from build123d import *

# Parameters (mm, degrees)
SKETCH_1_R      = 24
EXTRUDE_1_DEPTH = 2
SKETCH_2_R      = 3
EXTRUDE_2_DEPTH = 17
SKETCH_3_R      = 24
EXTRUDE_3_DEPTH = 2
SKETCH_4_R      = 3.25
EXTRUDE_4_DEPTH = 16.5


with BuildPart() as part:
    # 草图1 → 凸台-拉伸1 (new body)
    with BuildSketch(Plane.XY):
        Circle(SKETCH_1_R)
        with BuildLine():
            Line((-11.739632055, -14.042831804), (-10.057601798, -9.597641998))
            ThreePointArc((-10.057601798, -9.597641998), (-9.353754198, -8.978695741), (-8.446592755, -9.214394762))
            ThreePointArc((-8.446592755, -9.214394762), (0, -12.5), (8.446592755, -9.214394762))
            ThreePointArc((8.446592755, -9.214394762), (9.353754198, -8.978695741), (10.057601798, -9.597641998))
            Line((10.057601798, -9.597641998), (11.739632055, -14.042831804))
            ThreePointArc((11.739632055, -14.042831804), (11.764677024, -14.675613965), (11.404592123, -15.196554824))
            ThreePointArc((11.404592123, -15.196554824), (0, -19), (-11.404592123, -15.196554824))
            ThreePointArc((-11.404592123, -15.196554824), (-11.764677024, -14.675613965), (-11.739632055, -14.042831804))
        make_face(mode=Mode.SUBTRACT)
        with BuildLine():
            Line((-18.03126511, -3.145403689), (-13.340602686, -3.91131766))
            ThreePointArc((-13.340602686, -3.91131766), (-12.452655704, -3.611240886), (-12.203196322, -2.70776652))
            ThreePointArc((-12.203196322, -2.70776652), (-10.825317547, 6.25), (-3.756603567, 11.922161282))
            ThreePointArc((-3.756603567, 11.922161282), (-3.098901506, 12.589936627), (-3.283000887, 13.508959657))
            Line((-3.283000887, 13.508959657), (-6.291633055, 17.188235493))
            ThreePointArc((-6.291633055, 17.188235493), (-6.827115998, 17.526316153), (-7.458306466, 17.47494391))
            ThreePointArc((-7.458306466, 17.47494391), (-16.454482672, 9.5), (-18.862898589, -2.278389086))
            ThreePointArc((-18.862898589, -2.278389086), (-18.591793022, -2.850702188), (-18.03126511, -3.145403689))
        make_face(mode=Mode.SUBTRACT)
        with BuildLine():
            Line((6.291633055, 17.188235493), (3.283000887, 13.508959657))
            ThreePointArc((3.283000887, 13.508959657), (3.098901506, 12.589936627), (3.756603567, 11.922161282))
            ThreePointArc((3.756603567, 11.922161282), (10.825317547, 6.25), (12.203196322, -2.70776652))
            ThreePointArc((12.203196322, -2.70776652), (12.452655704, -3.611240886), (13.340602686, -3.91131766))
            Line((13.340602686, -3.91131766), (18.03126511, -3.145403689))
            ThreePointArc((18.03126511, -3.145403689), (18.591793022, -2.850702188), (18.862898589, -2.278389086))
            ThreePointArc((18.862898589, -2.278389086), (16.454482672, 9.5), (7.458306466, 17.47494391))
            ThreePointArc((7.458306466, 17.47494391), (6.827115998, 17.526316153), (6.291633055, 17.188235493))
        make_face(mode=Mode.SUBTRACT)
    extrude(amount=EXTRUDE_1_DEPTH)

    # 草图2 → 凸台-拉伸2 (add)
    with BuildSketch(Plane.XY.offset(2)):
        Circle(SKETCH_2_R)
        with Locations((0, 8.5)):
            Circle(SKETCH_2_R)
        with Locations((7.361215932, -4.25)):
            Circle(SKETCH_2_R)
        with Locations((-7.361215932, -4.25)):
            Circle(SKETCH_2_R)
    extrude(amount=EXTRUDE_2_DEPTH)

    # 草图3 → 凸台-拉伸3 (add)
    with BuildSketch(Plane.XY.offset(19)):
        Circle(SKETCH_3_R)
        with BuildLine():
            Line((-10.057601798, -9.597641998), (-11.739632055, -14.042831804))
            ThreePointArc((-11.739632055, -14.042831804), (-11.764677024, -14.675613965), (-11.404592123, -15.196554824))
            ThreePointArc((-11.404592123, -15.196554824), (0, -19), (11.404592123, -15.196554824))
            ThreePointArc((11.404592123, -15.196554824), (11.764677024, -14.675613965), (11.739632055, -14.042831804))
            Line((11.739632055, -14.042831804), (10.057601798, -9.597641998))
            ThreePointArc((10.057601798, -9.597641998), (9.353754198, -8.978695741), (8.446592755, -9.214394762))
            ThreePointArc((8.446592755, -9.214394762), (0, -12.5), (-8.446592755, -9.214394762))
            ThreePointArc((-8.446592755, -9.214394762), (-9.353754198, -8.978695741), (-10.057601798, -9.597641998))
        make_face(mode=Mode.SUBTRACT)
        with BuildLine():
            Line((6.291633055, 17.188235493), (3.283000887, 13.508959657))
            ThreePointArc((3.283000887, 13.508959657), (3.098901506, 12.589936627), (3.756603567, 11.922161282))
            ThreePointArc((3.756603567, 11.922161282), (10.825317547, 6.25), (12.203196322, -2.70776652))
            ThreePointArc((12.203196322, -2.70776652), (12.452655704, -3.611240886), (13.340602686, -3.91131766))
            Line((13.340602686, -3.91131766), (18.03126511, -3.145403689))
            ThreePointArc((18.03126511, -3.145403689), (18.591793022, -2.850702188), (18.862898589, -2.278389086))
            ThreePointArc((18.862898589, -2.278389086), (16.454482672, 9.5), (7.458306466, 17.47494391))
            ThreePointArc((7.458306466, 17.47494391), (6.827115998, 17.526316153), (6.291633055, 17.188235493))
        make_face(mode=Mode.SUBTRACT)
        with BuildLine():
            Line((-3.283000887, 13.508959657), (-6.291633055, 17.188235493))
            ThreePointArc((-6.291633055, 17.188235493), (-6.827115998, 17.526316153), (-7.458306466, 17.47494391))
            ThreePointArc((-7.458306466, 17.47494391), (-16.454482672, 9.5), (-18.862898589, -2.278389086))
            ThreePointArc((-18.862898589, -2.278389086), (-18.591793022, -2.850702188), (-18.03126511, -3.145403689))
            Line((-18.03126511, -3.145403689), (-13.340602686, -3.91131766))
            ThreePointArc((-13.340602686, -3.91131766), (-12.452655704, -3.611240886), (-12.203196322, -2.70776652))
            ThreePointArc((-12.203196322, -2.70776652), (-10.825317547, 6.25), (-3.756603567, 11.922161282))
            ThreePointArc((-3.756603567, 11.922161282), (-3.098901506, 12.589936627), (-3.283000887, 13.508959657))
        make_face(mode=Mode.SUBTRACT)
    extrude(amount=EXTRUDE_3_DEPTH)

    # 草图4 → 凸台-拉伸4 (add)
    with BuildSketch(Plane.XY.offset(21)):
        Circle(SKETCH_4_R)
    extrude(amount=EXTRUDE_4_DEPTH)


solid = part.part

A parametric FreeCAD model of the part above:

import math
import FreeCAD as App
import Part
import Sketcher

doc = App.newDocument("Part")
body = doc.addObject("PartDesign::Body", "Body")

# Sketch on XY plane
sketch1 = body.newObject("Sketcher::SketchObject", "Sketch")
sketch1.AttachmentSupport = (doc.getObject("XY_Plane"), [""])
sketch1.MapMode = "FlatFace"
sketch1.addGeometry([
    Part.Circle(App.Vector(0, 0, 0), App.Vector(0, 0, 1), 24),  # 0
    Part.ArcOfCircle(Part.Circle(App.Vector(-10.8, -14.4, 0), App.Vector(0, 0, 1), 1), math.radians(159), math.radians(233)),  # 1
    Part.LineSegment(App.Vector(-11.7, -14, 0), App.Vector(-10.1, -9.6, 0)),  # 2
    Part.ArcOfCircle(Part.Circle(App.Vector(-9.1, -10, 0), App.Vector(0, 0, 1), 1), math.radians(47), math.radians(159)),  # 3
    Part.ArcOfCircle(Part.Circle(App.Vector(0, 0, 0), App.Vector(0, 0, 1), 12.5), math.radians(-133), math.radians(-47)),  # 4
    Part.ArcOfCircle(Part.Circle(App.Vector(9.1, -10, 0), App.Vector(0, 0, 1), 1), math.radians(21), math.radians(133)),  # 5
    Part.LineSegment(App.Vector(10.1, -9.6, 0), App.Vector(11.7, -14, 0)),  # 6
    Part.ArcOfCircle(Part.Circle(App.Vector(10.8, -14.4, 0), App.Vector(0, 0, 1), 1), math.radians(-53), math.radians(21)),  # 7
    Part.ArcOfCircle(Part.Circle(App.Vector(0, 0, 0), App.Vector(0, 0, 1), 19), math.radians(-127), math.radians(-53)),  # 8
    Part.LineSegment(App.Vector(-13.3, -3.9, 0), App.Vector(-18, -3.1, 0)),  # 9
    Part.ArcOfCircle(Part.Circle(App.Vector(-17.9, -2.2, 0), App.Vector(0, 0, 1), 1), math.radians(-173), math.radians(-99)),  # 10
    Part.ArcOfCircle(Part.Circle(App.Vector(0, 0, 0), App.Vector(0, 0, 1), 19), math.radians(113), math.radians(187)),  # 11
    Part.ArcOfCircle(Part.Circle(App.Vector(-7.1, 16.6, 0), App.Vector(0, 0, 1), 1), math.radians(39), math.radians(113)),  # 12
    Part.LineSegment(App.Vector(-6.3, 17.2, 0), App.Vector(-3.3, 13.5, 0)),  # 13
    Part.ArcOfCircle(Part.Circle(App.Vector(-4.1, 12.9, 0), App.Vector(0, 0, 1), 1), math.radians(-73), math.radians(39)),  # 14
    Part.ArcOfCircle(Part.Circle(App.Vector(0, 0, 0), App.Vector(0, 0, 1), 12.5), math.radians(107), math.radians(193)),  # 15
    Part.ArcOfCircle(Part.Circle(App.Vector(-13.2, -2.9, 0), App.Vector(0, 0, 1), 1), math.radians(-99), math.radians(13)),  # 16
    Part.LineSegment(App.Vector(3.3, 13.5, 0), App.Vector(6.3, 17.2, 0)),  # 17
    Part.ArcOfCircle(Part.Circle(App.Vector(7.1, 16.6, 0), App.Vector(0, 0, 1), 1), math.radians(67), math.radians(141)),  # 18
    Part.ArcOfCircle(Part.Circle(App.Vector(0, 0, 0), App.Vector(0, 0, 1), 19), math.radians(-7), math.radians(67)),  # 19
    Part.ArcOfCircle(Part.Circle(App.Vector(17.9, -2.2, 0), App.Vector(0, 0, 1), 1), math.radians(-81), math.radians(-7)),  # 20
    Part.LineSegment(App.Vector(18, -3.1, 0), App.Vector(13.3, -3.9, 0)),  # 21
    Part.ArcOfCircle(Part.Circle(App.Vector(13.2, -2.9, 0), App.Vector(0, 0, 1), 1), math.radians(167), math.radians(279)),  # 22
    Part.ArcOfCircle(Part.Circle(App.Vector(0, 0, 0), App.Vector(0, 0, 1), 12.5), math.radians(-13), math.radians(73)),  # 23
    Part.ArcOfCircle(Part.Circle(App.Vector(4.1, 12.9, 0), App.Vector(0, 0, 1), 1), math.radians(141), math.radians(253)),  # 24
], False)
sketch1.addConstraint([
    Sketcher.Constraint("Tangent", 1, 1, 2, 1),
    Sketcher.Constraint("Tangent", 2, 2, 3, 2),
    Sketcher.Constraint("Tangent", 3, 1, 4, 1),
    Sketcher.Constraint("Tangent", 4, 2, 5, 2),
    Sketcher.Constraint("Tangent", 5, 1, 6, 1),
    Sketcher.Constraint("Tangent", 6, 2, 7, 2),
    Sketcher.Constraint("Tangent", 7, 1, 8, 2),
    Sketcher.Constraint("Tangent", 8, 1, 1, 2),
    Sketcher.Constraint("Tangent", 9, 2, 10, 2),
    Sketcher.Constraint("Tangent", 10, 1, 11, 2),
    Sketcher.Constraint("Tangent", 11, 1, 12, 2),
    Sketcher.Constraint("Tangent", 12, 1, 13, 1),
    Sketcher.Constraint("Tangent", 13, 2, 14, 2),
    Sketcher.Constraint("Tangent", 14, 1, 15, 1),
    Sketcher.Constraint("Tangent", 15, 2, 16, 2),
    Sketcher.Constraint("Tangent", 16, 1, 9, 1),
    Sketcher.Constraint("Tangent", 17, 2, 18, 2),
    Sketcher.Constraint("Tangent", 18, 1, 19, 2),
    Sketcher.Constraint("Tangent", 19, 1, 20, 2),
    Sketcher.Constraint("Tangent", 20, 1, 21, 1),
    Sketcher.Constraint("Tangent", 21, 2, 22, 2),
    Sketcher.Constraint("Tangent", 22, 1, 23, 1),
    Sketcher.Constraint("Tangent", 23, 2, 24, 2),
    Sketcher.Constraint("Tangent", 24, 1, 17, 1),
    Sketcher.Constraint("Coincident", 0, 3, -1, 1),
    Sketcher.Constraint("Coincident", 4, 3, -1, 1),
    Sketcher.Constraint("Coincident", 8, 3, -1, 1),
    Sketcher.Constraint("Coincident", 11, 3, -1, 1),
    Sketcher.Constraint("Coincident", 15, 3, -1, 1),
    Sketcher.Constraint("Coincident", 19, 3, -1, 1),
    Sketcher.Constraint("Coincident", 23, 3, -1, 1),
    Sketcher.Constraint("Equal", 1, 3),
    Sketcher.Constraint("Equal", 3, 5),
    Sketcher.Constraint("Equal", 5, 7),
    Sketcher.Constraint("Equal", 7, 10),
    Sketcher.Constraint("Equal", 8, 11),
    Sketcher.Constraint("Equal", 10, 12),
    Sketcher.Constraint("Equal", 12, 14),
    Sketcher.Constraint("Equal", 4, 15),
    Sketcher.Constraint("Equal", 14, 16),
    Sketcher.Constraint("Equal", 16, 18),
    Sketcher.Constraint("Equal", 11, 19),
    Sketcher.Constraint("Equal", 18, 20),
    Sketcher.Constraint("Equal", 20, 22),
    Sketcher.Constraint("Equal", 15, 23),
    Sketcher.Constraint("Equal", 22, 24),
    Sketcher.Constraint("Symmetric", 2, 2, 5, 1, -2),
    Sketcher.Constraint("Symmetric", 12, 1, 17, 2, -2),
    Sketcher.Constraint("Symmetric", 9, 2, 20, 1, -2),
    Sketcher.Constraint("Equal", 6, 9),
    Sketcher.Constraint("Equal", 9, 13),
    Sketcher.Constraint("Diameter", 0, 48.0),
    Sketcher.Constraint("Radius", 1, 1.0),
    Sketcher.Constraint("Radius", 8, 19.0),
    Sketcher.Constraint("Radius", 4, 12.5),
    Sketcher.Constraint("DistanceX", 13, 2, -1, 1, 3.283001),
    Sketcher.Constraint("DistanceX", 4, 2, 7, 1, 2.957999),
    Sketcher.Constraint("DistanceY", 16, 3, 10, 1, 0.645999),
    Sketcher.Constraint("DistanceX", 5, 1, 21, 2, 3.283001),
])
pad1 = body.newObject("PartDesign::Pad", "Pad")
pad1.Profile = sketch1
pad1.Length = 2

# Sketch on XY plane
sketch2 = body.newObject("Sketcher::SketchObject", "Sketch001")
sketch2.AttachmentSupport = (doc.getObject("XY_Plane"), [""])
sketch2.MapMode = "FlatFace"
sketch2.AttachmentOffset = App.Placement(App.Vector(0, 0, 2), App.Rotation())
sketch2.addGeometry([
    Part.Circle(App.Vector(0, 0, 0), App.Vector(0, 0, 1), 3),
    Part.Circle(App.Vector(0, 8.5, 0), App.Vector(0, 0, 1), 3),
    Part.Circle(App.Vector(7.4, -4.2, 0), App.Vector(0, 0, 1), 3),
    Part.Circle(App.Vector(-7.4, -4.2, 0), App.Vector(0, 0, 1), 3),
], False)
sketch2.addConstraint([
    Sketcher.Constraint("Coincident", 0, 3, -1, 1),
    Sketcher.Constraint("Equal", 0, 1),
    Sketcher.Constraint("Equal", 1, 2),
    Sketcher.Constraint("Equal", 2, 3),
    Sketcher.Constraint("Symmetric", 2, 3, 3, 3, -2),
    Sketcher.Constraint("PointOnObject", 1, 3, -2),
    Sketcher.Constraint("Diameter", 0, 6.0),
    Sketcher.Constraint("DistanceY", -1, 1, 1, 3, 8.5),
    Sketcher.Constraint("DistanceY", 2, 3, -1, 1, 4.25),
    Sketcher.Constraint("DistanceX", 3, 3, 2, 3, 14.722432),
])
pad2 = body.newObject("PartDesign::Pad", "Pad001")
pad2.Profile = sketch2
pad2.Length = 17

# Sketch on XY plane
sketch3 = body.newObject("Sketcher::SketchObject", "Sketch002")
sketch3.AttachmentSupport = (doc.getObject("XY_Plane"), [""])
sketch3.MapMode = "FlatFace"
sketch3.AttachmentOffset = App.Placement(App.Vector(0, 0, 19), App.Rotation())
sketch3.addGeometry([
    Part.Circle(App.Vector(0, 0, 0), App.Vector(0, 0, 1), 24),  # 0
    Part.LineSegment(App.Vector(-11.7, -14, 0), App.Vector(-10.1, -9.6, 0)),  # 1
    Part.ArcOfCircle(Part.Circle(App.Vector(-9.1, -10, 0), App.Vector(0, 0, 1), 1), math.radians(47), math.radians(159)),  # 2
    Part.ArcOfCircle(Part.Circle(App.Vector(0, 0, 0), App.Vector(0, 0, 1), 12.5), math.radians(-133), math.radians(-47)),  # 3
    Part.ArcOfCircle(Part.Circle(App.Vector(9.1, -10, 0), App.Vector(0, 0, 1), 1), math.radians(21), math.radians(133)),  # 4
    Part.LineSegment(App.Vector(10.1, -9.6, 0), App.Vector(11.7, -14, 0)),  # 5
    Part.ArcOfCircle(Part.Circle(App.Vector(10.8, -14.4, 0), App.Vector(0, 0, 1), 1), math.radians(-53), math.radians(21)),  # 6
    Part.ArcOfCircle(Part.Circle(App.Vector(0, 0, 0), App.Vector(0, 0, 1), 19), math.radians(-127), math.radians(-53)),  # 7
    Part.ArcOfCircle(Part.Circle(App.Vector(-10.8, -14.4, 0), App.Vector(0, 0, 1), 1), math.radians(159), math.radians(233)),  # 8
    Part.LineSegment(App.Vector(-6.3, 17.2, 0), App.Vector(-3.3, 13.5, 0)),  # 9
    Part.ArcOfCircle(Part.Circle(App.Vector(-4.1, 12.9, 0), App.Vector(0, 0, 1), 1), math.radians(-73), math.radians(39)),  # 10
    Part.ArcOfCircle(Part.Circle(App.Vector(0, 0, 0), App.Vector(0, 0, 1), 12.5), math.radians(107), math.radians(193)),  # 11
    Part.ArcOfCircle(Part.Circle(App.Vector(-13.2, -2.9, 0), App.Vector(0, 0, 1), 1), math.radians(-99), math.radians(13)),  # 12
    Part.LineSegment(App.Vector(-13.3, -3.9, 0), App.Vector(-18, -3.1, 0)),  # 13
    Part.ArcOfCircle(Part.Circle(App.Vector(-17.9, -2.2, 0), App.Vector(0, 0, 1), 1), math.radians(-173), math.radians(-99)),  # 14
    Part.ArcOfCircle(Part.Circle(App.Vector(0, 0, 0), App.Vector(0, 0, 1), 19), math.radians(113), math.radians(187)),  # 15
    Part.ArcOfCircle(Part.Circle(App.Vector(-7.1, 16.6, 0), App.Vector(0, 0, 1), 1), math.radians(39), math.radians(113)),  # 16
    Part.LineSegment(App.Vector(3.3, 13.5, 0), App.Vector(6.3, 17.2, 0)),  # 17
    Part.ArcOfCircle(Part.Circle(App.Vector(7.1, 16.6, 0), App.Vector(0, 0, 1), 1), math.radians(67), math.radians(141)),  # 18
    Part.ArcOfCircle(Part.Circle(App.Vector(0, 0, 0), App.Vector(0, 0, 1), 19), math.radians(-7), math.radians(67)),  # 19
    Part.ArcOfCircle(Part.Circle(App.Vector(17.9, -2.2, 0), App.Vector(0, 0, 1), 1), math.radians(-81), math.radians(-7)),  # 20
    Part.LineSegment(App.Vector(18, -3.1, 0), App.Vector(13.3, -3.9, 0)),  # 21
    Part.ArcOfCircle(Part.Circle(App.Vector(13.2, -2.9, 0), App.Vector(0, 0, 1), 1), math.radians(167), math.radians(279)),  # 22
    Part.ArcOfCircle(Part.Circle(App.Vector(0, 0, 0), App.Vector(0, 0, 1), 12.5), math.radians(-13), math.radians(73)),  # 23
    Part.ArcOfCircle(Part.Circle(App.Vector(4.1, 12.9, 0), App.Vector(0, 0, 1), 1), math.radians(141), math.radians(253)),  # 24
], False)
sketch3.addConstraint([
    Sketcher.Constraint("Tangent", 1, 2, 2, 2),
    Sketcher.Constraint("Tangent", 2, 1, 3, 1),
    Sketcher.Constraint("Tangent", 3, 2, 4, 2),
    Sketcher.Constraint("Tangent", 4, 1, 5, 1),
    Sketcher.Constraint("Tangent", 5, 2, 6, 2),
    Sketcher.Constraint("Tangent", 6, 1, 7, 2),
    Sketcher.Constraint("Tangent", 7, 1, 8, 2),
    Sketcher.Constraint("Tangent", 8, 1, 1, 1),
    Sketcher.Constraint("Tangent", 9, 2, 10, 2),
    Sketcher.Constraint("Tangent", 10, 1, 11, 1),
    Sketcher.Constraint("Tangent", 11, 2, 12, 2),
    Sketcher.Constraint("Tangent", 12, 1, 13, 1),
    Sketcher.Constraint("Tangent", 13, 2, 14, 2),
    Sketcher.Constraint("Tangent", 14, 1, 15, 2),
    Sketcher.Constraint("Tangent", 15, 1, 16, 2),
    Sketcher.Constraint("Tangent", 16, 1, 9, 1),
    Sketcher.Constraint("Tangent", 17, 2, 18, 2),
    Sketcher.Constraint("Tangent", 18, 1, 19, 2),
    Sketcher.Constraint("Tangent", 19, 1, 20, 2),
    Sketcher.Constraint("Tangent", 20, 1, 21, 1),
    Sketcher.Constraint("Tangent", 21, 2, 22, 2),
    Sketcher.Constraint("Tangent", 22, 1, 23, 1),
    Sketcher.Constraint("Tangent", 23, 2, 24, 2),
    Sketcher.Constraint("Tangent", 24, 1, 17, 1),
    Sketcher.Constraint("Coincident", 0, 3, -1, 1),
    Sketcher.Constraint("Coincident", 3, 3, -1, 1),
    Sketcher.Constraint("Coincident", 7, 3, -1, 1),
    Sketcher.Constraint("Coincident", 11, 3, -1, 1),
    Sketcher.Constraint("Coincident", 15, 3, -1, 1),
    Sketcher.Constraint("Coincident", 19, 3, -1, 1),
    Sketcher.Constraint("Coincident", 23, 3, -1, 1),
    Sketcher.Constraint("Equal", 2, 4),
    Sketcher.Constraint("Equal", 4, 6),
    Sketcher.Constraint("Equal", 6, 8),
    Sketcher.Constraint("Equal", 8, 10),
    Sketcher.Constraint("Equal", 3, 11),
    Sketcher.Constraint("Equal", 10, 12),
    Sketcher.Constraint("Equal", 12, 14),
    Sketcher.Constraint("Equal", 7, 15),
    Sketcher.Constraint("Equal", 14, 16),
    Sketcher.Constraint("Equal", 16, 18),
    Sketcher.Constraint("Equal", 15, 19),
    Sketcher.Constraint("Equal", 18, 20),
    Sketcher.Constraint("Equal", 20, 22),
    Sketcher.Constraint("Equal", 11, 23),
    Sketcher.Constraint("Equal", 22, 24),
    Sketcher.Constraint("Symmetric", 1, 2, 4, 1, -2),
    Sketcher.Constraint("Symmetric", 16, 1, 17, 2, -2),
    Sketcher.Constraint("Symmetric", 13, 2, 20, 1, -2),
    Sketcher.Constraint("Equal", 5, 9),
    Sketcher.Constraint("Equal", 9, 13),
    Sketcher.Constraint("Diameter", 0, 48.0),
    Sketcher.Constraint("Radius", 2, 1.0),
    Sketcher.Constraint("Radius", 7, 19.0),
    Sketcher.Constraint("Radius", 3, 12.5),
    Sketcher.Constraint("DistanceX", 9, 2, -1, 1, 3.283001),
    Sketcher.Constraint("DistanceX", 3, 2, 6, 1, 2.957999),
    Sketcher.Constraint("DistanceX", 12, 1, 1, 2, 3.283001),
    Sketcher.Constraint("DistanceY", 12, 3, 14, 1, 0.645999),
])
pad3 = body.newObject("PartDesign::Pad", "Pad002")
pad3.Profile = sketch3
pad3.Length = 2

# Sketch on XY plane
sketch4 = body.newObject("Sketcher::SketchObject", "Sketch003")
sketch4.AttachmentSupport = (doc.getObject("XY_Plane"), [""])
sketch4.MapMode = "FlatFace"
sketch4.AttachmentOffset = App.Placement(App.Vector(0, 0, 21), App.Rotation())
sketch4.addGeometry(Part.Circle(App.Vector(0, 0, 0), App.Vector(0, 0, 1), 3.2), False)
sketch4.addConstraint([
    Sketcher.Constraint("Coincident", 0, 3, -1, 1),
    Sketcher.Constraint("Diameter", 0, 6.5),
])
pad4 = body.newObject("PartDesign::Pad", "Pad003")
pad4.Profile = sketch4
pad4.Length = 16.5

doc.recompute()
